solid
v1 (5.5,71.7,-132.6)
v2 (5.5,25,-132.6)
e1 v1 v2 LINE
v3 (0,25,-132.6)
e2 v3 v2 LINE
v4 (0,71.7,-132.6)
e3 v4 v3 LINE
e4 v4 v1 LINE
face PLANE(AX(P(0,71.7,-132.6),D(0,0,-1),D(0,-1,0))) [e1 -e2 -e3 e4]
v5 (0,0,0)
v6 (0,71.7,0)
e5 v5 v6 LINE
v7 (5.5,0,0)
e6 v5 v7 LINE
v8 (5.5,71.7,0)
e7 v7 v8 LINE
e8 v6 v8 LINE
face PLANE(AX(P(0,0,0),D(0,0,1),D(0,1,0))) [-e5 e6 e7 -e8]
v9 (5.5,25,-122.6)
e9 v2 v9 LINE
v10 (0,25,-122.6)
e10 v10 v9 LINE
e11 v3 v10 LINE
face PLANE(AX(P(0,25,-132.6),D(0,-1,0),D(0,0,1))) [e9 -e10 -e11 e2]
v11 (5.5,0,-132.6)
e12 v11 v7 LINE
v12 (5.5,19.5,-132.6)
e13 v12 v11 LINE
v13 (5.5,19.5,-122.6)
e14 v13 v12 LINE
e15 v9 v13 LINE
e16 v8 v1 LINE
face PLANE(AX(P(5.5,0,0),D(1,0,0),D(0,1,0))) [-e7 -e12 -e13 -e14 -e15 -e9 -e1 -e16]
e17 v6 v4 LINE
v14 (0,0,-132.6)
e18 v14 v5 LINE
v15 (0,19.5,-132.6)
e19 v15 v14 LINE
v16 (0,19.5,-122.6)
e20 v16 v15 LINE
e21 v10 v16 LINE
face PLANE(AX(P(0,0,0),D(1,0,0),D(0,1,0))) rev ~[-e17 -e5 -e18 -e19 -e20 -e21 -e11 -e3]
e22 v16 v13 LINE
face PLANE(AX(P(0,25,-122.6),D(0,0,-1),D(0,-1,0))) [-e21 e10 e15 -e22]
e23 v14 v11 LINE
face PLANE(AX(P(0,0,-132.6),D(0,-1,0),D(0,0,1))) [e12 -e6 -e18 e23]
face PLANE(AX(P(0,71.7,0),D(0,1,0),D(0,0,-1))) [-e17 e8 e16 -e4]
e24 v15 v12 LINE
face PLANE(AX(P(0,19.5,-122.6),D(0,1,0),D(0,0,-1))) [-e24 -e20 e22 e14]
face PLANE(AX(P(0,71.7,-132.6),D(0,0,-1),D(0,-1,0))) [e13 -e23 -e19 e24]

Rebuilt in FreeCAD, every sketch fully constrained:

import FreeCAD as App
import Part
import Sketcher
from FreeCAD import Vector
Q = App.Units.Quantity

doc = App.newDocument("Part")
body = doc.addObject("PartDesign::Body", "Body")

sketch1 = body.newObject("Sketcher::SketchObject", "Sketch")
sketch1.AttachmentSupport = (doc.getObject("YZ_Plane"), [""])
sketch1.MapMode = "FlatFace"
sketch1.addGeometry([
    Part.LineSegment(Vector(72, 0, 0), Vector(0, 0, 0)),
    Part.LineSegment(Vector(0, 0, 0), Vector(0, -133, 0)),
    Part.LineSegment(Vector(0, -133, 0), Vector(72, -133, 0)),
    Part.LineSegment(Vector(72, -133, 0), Vector(72, 0, 0)),
], False)
sketch1.addConstraint([
    Sketcher.Constraint("Coincident", 0, 2, 1, 1),
    Sketcher.Constraint("Coincident", 1, 2, 2, 1),
    Sketcher.Constraint("Coincident", 2, 2, 3, 1),
    Sketcher.Constraint("Coincident", 3, 2, 0, 1),
    Sketcher.Constraint("Horizontal", 0),
    Sketcher.Constraint("Vertical", 1),
    Sketcher.Constraint("Horizontal", 2),
    Sketcher.Constraint("Vertical", 3),
    Sketcher.Constraint("Coincident", 0, 2, -1, 1),
    Sketcher.Constraint("DistanceX", 0, 2, 0, 1, Q("71.7 mm")),
    Sketcher.Constraint("DistanceY", 1, 2, 1, 1, Q("132.6 mm")),
])
pad1 = body.newObject("PartDesign::Pad", "Pad")
pad1.Profile = sketch1
pad1.Length = 5.5

sketch2 = body.newObject("Sketcher::SketchObject", "Sketch001")
sketch2.AttachmentSupport = (doc.getObject("YZ_Plane"), [""])
sketch2.MapMode = "FlatFace"
sketch2.addGeometry([
    Part.LineSegment(Vector(25, -133, 0), Vector(20, -133, 0)),
    Part.LineSegment(Vector(20, -133, 0), Vector(20, -123, 0)),
    Part.LineSegment(Vector(20, -123, 0), Vector(25, -123, 0)),
    Part.LineSegment(Vector(25, -123, 0), Vector(25, -133, 0)),
], False)
sketch2.addConstraint([
    Sketcher.Constraint("Coincident", 0, 2, 1, 1),
    Sketcher.Constraint("Coincident", 1, 2, 2, 1),
    Sketcher.Constraint("Coincident", 2, 2, 3, 1),
    Sketcher.Constraint("Coincident", 3, 2, 0, 1),
    Sketcher.Constraint("Horizontal", 0),
    Sketcher.Constraint("Vertical", 1),
    Sketcher.Constraint("Horizontal", 2),
    Sketcher.Constraint("Vertical", 3),
    Sketcher.Constraint("DistanceY", 1, 1, 1, 2, Q("10 mm")),
    Sketcher.Constraint("DistanceX", 0, 2, 0, 1, Q("5.5 mm")),
    Sketcher.Constraint("DistanceX", -1, 1, 2, 2, Q("25 mm")),
    Sketcher.Constraint("DistanceY", 0, 2, -1, 1, Q("132.6 mm")),
])
pocket1 = body.newObject("PartDesign::Pocket", "Pocket")
pocket1.Profile = sketch2
pocket1.Length = 5.5
pocket1.Reversed = True

doc.recompute()
